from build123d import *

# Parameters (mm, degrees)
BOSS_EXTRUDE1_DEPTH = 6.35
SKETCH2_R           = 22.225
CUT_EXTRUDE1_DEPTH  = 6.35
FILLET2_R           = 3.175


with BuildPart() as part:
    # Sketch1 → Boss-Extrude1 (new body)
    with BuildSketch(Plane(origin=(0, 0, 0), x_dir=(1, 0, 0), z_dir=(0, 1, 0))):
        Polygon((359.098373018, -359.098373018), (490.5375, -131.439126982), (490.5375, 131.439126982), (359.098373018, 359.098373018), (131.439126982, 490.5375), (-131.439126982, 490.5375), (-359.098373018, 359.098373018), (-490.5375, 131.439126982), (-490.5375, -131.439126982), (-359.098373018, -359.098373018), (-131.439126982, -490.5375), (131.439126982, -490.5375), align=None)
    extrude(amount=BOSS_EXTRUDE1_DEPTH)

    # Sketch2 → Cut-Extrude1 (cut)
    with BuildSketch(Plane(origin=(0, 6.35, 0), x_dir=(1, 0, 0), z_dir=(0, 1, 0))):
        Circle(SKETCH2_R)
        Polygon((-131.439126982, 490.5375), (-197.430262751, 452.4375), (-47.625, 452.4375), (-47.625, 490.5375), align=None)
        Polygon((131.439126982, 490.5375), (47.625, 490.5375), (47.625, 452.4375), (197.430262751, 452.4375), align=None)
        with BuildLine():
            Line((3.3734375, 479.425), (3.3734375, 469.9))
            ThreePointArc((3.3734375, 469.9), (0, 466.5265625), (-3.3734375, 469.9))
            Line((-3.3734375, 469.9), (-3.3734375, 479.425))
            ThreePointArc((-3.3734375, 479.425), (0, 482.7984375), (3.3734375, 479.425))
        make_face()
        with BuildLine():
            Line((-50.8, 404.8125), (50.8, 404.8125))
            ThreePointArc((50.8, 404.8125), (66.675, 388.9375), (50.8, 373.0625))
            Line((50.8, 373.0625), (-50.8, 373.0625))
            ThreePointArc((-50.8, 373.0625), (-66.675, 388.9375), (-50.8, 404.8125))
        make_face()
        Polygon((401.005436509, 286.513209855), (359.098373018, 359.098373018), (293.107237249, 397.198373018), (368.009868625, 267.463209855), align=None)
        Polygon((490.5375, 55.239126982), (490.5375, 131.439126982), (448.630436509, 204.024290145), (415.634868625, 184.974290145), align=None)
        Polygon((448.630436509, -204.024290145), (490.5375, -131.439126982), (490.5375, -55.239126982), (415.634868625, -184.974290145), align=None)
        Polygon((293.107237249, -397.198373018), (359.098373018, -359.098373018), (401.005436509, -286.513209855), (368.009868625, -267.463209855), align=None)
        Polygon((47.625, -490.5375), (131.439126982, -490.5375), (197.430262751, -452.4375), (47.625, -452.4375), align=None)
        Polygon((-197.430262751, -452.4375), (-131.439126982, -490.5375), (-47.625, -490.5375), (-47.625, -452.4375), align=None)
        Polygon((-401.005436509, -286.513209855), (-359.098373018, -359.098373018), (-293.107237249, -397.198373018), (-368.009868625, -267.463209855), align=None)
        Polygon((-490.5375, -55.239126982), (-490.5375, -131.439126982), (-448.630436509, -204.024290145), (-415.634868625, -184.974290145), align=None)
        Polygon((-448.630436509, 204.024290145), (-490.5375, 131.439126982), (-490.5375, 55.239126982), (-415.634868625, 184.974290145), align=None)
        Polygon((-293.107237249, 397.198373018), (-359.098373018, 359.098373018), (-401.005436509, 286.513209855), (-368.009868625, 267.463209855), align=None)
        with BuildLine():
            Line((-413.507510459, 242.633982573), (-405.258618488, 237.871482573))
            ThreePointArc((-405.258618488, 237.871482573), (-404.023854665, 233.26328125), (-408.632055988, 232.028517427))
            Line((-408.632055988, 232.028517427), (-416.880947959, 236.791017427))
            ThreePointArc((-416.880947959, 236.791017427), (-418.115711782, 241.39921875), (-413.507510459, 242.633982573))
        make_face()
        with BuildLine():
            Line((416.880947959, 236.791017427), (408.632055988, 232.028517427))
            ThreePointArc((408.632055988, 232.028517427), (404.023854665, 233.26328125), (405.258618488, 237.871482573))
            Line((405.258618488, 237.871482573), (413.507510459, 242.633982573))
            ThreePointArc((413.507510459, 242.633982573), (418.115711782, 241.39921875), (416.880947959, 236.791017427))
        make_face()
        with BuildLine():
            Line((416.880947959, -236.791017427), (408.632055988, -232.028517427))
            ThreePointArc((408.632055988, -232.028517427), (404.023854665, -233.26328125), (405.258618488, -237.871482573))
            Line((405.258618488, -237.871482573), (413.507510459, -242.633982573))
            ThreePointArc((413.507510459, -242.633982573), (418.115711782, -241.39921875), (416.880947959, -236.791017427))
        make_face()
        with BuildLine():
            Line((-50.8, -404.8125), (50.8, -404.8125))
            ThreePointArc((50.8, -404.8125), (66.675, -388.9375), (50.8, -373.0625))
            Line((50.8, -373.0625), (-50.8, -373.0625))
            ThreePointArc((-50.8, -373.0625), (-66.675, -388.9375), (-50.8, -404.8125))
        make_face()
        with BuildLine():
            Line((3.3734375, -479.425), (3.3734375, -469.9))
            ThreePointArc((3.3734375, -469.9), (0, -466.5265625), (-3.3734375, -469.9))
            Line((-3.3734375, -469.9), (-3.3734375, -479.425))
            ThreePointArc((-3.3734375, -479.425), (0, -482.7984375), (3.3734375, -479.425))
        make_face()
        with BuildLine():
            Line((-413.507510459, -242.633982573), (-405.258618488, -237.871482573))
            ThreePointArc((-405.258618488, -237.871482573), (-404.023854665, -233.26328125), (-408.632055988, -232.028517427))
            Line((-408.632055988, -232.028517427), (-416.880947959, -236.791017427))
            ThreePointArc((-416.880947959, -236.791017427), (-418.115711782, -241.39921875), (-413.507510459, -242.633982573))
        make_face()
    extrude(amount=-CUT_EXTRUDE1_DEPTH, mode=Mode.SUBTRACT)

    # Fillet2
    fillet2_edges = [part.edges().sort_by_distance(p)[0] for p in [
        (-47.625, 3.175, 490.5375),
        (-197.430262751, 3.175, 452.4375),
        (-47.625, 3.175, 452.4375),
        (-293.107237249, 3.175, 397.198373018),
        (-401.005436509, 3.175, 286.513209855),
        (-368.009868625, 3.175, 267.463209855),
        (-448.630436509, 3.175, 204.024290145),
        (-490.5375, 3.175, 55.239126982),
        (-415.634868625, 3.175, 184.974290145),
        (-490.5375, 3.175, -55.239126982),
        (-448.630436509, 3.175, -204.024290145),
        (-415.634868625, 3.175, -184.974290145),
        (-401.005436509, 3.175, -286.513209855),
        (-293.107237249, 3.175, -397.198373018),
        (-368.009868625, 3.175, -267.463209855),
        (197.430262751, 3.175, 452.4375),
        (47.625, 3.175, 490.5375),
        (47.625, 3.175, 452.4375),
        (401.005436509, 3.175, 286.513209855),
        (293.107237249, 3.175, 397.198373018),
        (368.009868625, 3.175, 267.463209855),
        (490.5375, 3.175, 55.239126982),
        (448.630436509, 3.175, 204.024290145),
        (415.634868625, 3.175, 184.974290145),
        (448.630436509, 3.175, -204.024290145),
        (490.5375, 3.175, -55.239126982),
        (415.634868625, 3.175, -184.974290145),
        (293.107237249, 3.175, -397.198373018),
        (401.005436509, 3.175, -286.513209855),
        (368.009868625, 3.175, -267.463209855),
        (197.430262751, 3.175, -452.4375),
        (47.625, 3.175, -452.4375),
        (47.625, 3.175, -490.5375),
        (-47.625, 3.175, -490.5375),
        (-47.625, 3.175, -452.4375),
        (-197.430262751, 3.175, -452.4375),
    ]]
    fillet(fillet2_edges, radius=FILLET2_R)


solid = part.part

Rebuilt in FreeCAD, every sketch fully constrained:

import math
import FreeCAD as App
import Part
import Sketcher
from FreeCAD import Vector
Q = App.Units.Quantity


def edges_at(feature, points):
    """Names of the edges that pass closest to the given points."""
    edges = feature.Shape.Edges
    near = lambda p: min(range(len(edges)), key=lambda i: edges[i].distToShape(Part.Vertex(*p))[0])
    return sorted({f"Edge{near(p) + 1}" for p in points})


def add_polygon(sketch, points):
    """Adds a closed chain of lines whose ends are joined by coincident constraints."""
    first, n = sketch.GeometryCount, len(points)
    for a, b in zip(points, points[1:] + points[:1]):
        sketch.addGeometry(Part.LineSegment(App.Vector(*a, 0), App.Vector(*b, 0)), False)
    for i in range(n):
        sketch.addConstraint(Sketcher.Constraint("Coincident", first + i, 2, first + (i + 1) % n, 1))

doc = App.newDocument("Part")
body = doc.addObject("PartDesign::Body", "Body")

sketch1 = doc.addObject("Sketcher::SketchObject", "Sketch")
body.addObject(sketch1)
sketch1.AttachmentSupport = (doc.XZ_Plane, [""])
sketch1.MapMode = "FlatFace"
add_polygon(sketch1, [(359, 359), (491, 131), (491, -131), (359, -359), (131, -491), (-131, -491), (-359, -359), (-491, -131), (-491, 131), (-359, 359), (-131, 491), (131, 491)])
sketch1.addConstraint([
    Sketcher.Constraint("Vertical", 1),
    Sketcher.Constraint("Horizontal", 4),
    Sketcher.Constraint("Vertical", 7),
    Sketcher.Constraint("Horizontal", 10),
    Sketcher.Constraint("Symmetric", 0, 2, 6, 2, -1, 1),
    Sketcher.Constraint("Symmetric", 2, 2, 8, 2, -1, 1),
    Sketcher.Constraint("Symmetric", 3, 2, 9, 2, -1, 1),
    Sketcher.Constraint("Symmetric", 5, 2, 11, 2, -1, 1),
    Sketcher.Constraint("Symmetric", 2, 2, 5, 2, -2),
    Sketcher.Constraint("Perpendicular", 0, 3),
    Sketcher.Constraint("Perpendicular", 2, 5),
    Sketcher.Constraint("Perpendicular", 5, 8),
    Sketcher.Constraint("Perpendicular", 8, 11),
    Sketcher.Constraint("Horizontal", 1, 2, 6, 2),
    Sketcher.Constraint("Equal", 10, 1),
    Sketcher.Constraint("Equal", 2, 3),
    Sketcher.Constraint("Angle", 0, Q("-60 deg")),
    Sketcher.Constraint("DistanceX", -1, 1, 0, 2, Q("19.3125 in")),
    Sketcher.Constraint("DistanceY", 2, 2, 0, 2, Q("19.3125 in")),
])
pad1 = doc.addObject("PartDesign::Pad", "Pad")
body.addObject(pad1)
pad1.Profile = sketch1
pad1.Length = Q("0.25 in")
pad1.Reversed = True

sketch2 = doc.addObject("Sketcher::SketchObject", "Sketch001")
body.addObject(sketch2)
sketch2.AttachmentSupport = (doc.XZ_Plane, [""])
sketch2.MapMode = "FlatFace"
sketch2.AttachmentOffset = App.Placement(Vector(0, 0, -0.25 * 25.4), App.Rotation())
sketch2.addGeometry(Part.Circle(Vector(0, 0, 0), Vector(0, 0, 1), 22.2), False)
add_polygon(sketch2, [(-131.4, -490.5), (-197.4, -452.4), (-47.6, -452.4), (-47.6, -490.5)])
add_polygon(sketch2, [(131.4, -490.5), (47.6, -490.5), (47.6, -452.4), (197.4, -452.4)])
sketch2.addGeometry(Part.LineSegment(Vector(3.4, -469.9, 0), Vector(3.4, -479.4, 0)), False)
sketch2.addGeometry(Part.ArcOfCircle(Part.Circle(Vector(0, -479.4, 0), Vector(0, 0, 1), 3.4), math.radians(180), math.radians(360)), False)
sketch2.addGeometry(Part.LineSegment(Vector(-3.4, -479.4, 0), Vector(-3.4, -469.9, 0)), False)
sketch2.addGeometry(Part.ArcOfCircle(Part.Circle(Vector(0, -469.9, 0), Vector(0, 0, 1), 3.4), math.radians(0), math.radians(180)), False)
sketch2.addGeometry(Part.LineSegment(Vector(50.8, -404.8, 0), Vector(-50.8, -404.8, 0)), False)
sketch2.addGeometry(Part.ArcOfCircle(Part.Circle(Vector(-50.8, -388.9, 0), Vector(0, 0, 1), 15.9), math.radians(90), math.radians(270)), False)
sketch2.addGeometry(Part.LineSegment(Vector(-50.8, -373.1, 0), Vector(50.8, -373.1, 0)), False)
sketch2.addGeometry(Part.ArcOfCircle(Part.Circle(Vector(50.8, -388.9, 0), Vector(0, 0, 1), 15.9), math.radians(-90), math.radians(90)), False)
add_polygon(sketch2, [(401, -286.5), (359.1, -359.1), (293.1, -397.2), (368, -267.5)])
add_polygon(sketch2, [(490.5, -55.2), (490.5, -131.4), (448.6, -204), (415.6, -185)])
add_polygon(sketch2, [(448.6, 204), (490.5, 131.4), (490.5, 55.2), (415.6, 185)])
add_polygon(sketch2, [(293.1, 397.2), (359.1, 359.1), (401, 286.5), (368, 267.5)])
add_polygon(sketch2, [(47.6, 490.5), (131.4, 490.5), (197.4, 452.4), (47.6, 452.4)])
add_polygon(sketch2, [(-197.4, 452.4), (-131.4, 490.5), (-47.6, 490.5), (-47.6, 452.4)])
add_polygon(sketch2, [(-401, 286.5), (-359.1, 359.1), (-293.1, 397.2), (-368, 267.5)])
add_polygon(sketch2, [(-490.5, 55.2), (-490.5, 131.4), (-448.6, 204), (-415.6, 185)])
add_polygon(sketch2, [(-448.6, -204), (-490.5, -131.4), (-490.5, -55.2), (-415.6, -185)])
add_polygon(sketch2, [(-293.1, -397.2), (-359.1, -359.1), (-401, -286.5), (-368, -267.5)])
sketch2.addGeometry(Part.LineSegment(Vector(-405.3, -237.9, 0), Vector(-413.5, -242.6, 0)), False)
sketch2.addGeometry(Part.ArcOfCircle(Part.Circle(Vector(-415.2, -239.7, 0), Vector(0, 0, 1), 3.4), math.radians(120), math.radians(300)), False)
sketch2.addGeometry(Part.LineSegment(Vector(-416.9, -236.8, 0), Vector(-408.6, -232, 0)), False)
sketch2.addGeometry(Part.ArcOfCircle(Part.Circle(Vector(-406.9, -234.9, 0), Vector(0, 0, 1), 3.4), math.radians(-60), math.radians(120)), False)
sketch2.addGeometry(Part.LineSegment(Vector(408.6, -232, 0), Vector(416.9, -236.8, 0)), False)
sketch2.addGeometry(Part.ArcOfCircle(Part.Circle(Vector(415.2, -239.7, 0), Vector(0, 0, 1), 3.4), math.radians(-120), math.radians(60)), False)
sketch2.addGeometry(Part.LineSegment(Vector(413.5, -242.6, 0), Vector(405.3, -237.9, 0)), False)
sketch2.addGeometry(Part.ArcOfCircle(Part.Circle(Vector(406.9, -234.9, 0), Vector(0, 0, 1), 3.4), math.radians(60), math.radians(240)), False)
sketch2.addGeometry(Part.LineSegment(Vector(416.9, 236.8, 0), Vector(408.6, 232, 0)), False)
sketch2.addGeometry(Part.ArcOfCircle(Part.Circle(Vector(406.9, 234.9, 0), Vector(0, 0, 1), 3.4), math.radians(120), math.radians(300)), False)
sketch2.addGeometry(Part.LineSegment(Vector(405.3, 237.9, 0), Vector(413.5, 242.6, 0)), False)
sketch2.addGeometry(Part.ArcOfCircle(Part.Circle(Vector(415.2, 239.7, 0), Vector(0, 0, 1), 3.4), math.radians(-60), math.radians(120)), False)
sketch2.addGeometry(Part.LineSegment(Vector(-50.8, 404.8, 0), Vector(50.8, 404.8, 0)), False)
sketch2.addGeometry(Part.ArcOfCircle(Part.Circle(Vector(50.8, 388.9, 0), Vector(0, 0, 1), 15.9), math.radians(-90), math.radians(90)), False)
sketch2.addGeometry(Part.LineSegment(Vector(50.8, 373.1, 0), Vector(-50.8, 373.1, 0)), False)
sketch2.addGeometry(Part.ArcOfCircle(Part.Circle(Vector(-50.8, 388.9, 0), Vector(0, 0, 1), 15.9), math.radians(90), math.radians(270)), False)
sketch2.addGeometry(Part.LineSegment(Vector(3.4, 479.4, 0), Vector(3.4, 469.9, 0)), False)
sketch2.addGeometry(Part.ArcOfCircle(Part.Circle(Vector(0, 469.9, 0), Vector(0, 0, 1), 3.4), math.radians(180), math.radians(360)), False)
sketch2.addGeometry(Part.LineSegment(Vector(-3.4, 469.9, 0), Vector(-3.4, 479.4, 0)), False)
sketch2.addGeometry(Part.ArcOfCircle(Part.Circle(Vector(0, 479.4, 0), Vector(0, 0, 1), 3.4), math.radians(0), math.radians(180)), False)
sketch2.addGeometry(Part.LineSegment(Vector(-413.5, 242.6, 0), Vector(-405.3, 237.9, 0)), False)
sketch2.addGeometry(Part.ArcOfCircle(Part.Circle(Vector(-406.9, 234.9, 0), Vector(0, 0, 1), 3.4), math.radians(-120), math.radians(60)), False)
sketch2.addGeometry(Part.LineSegment(Vector(-408.6, 232, 0), Vector(-416.9, 236.8, 0)), False)
sketch2.addGeometry(Part.ArcOfCircle(Part.Circle(Vector(-415.2, 239.7, 0), Vector(0, 0, 1), 3.4), math.radians(60), math.radians(240)), False)
sketch2.addConstraint([
    Sketcher.Constraint("Tangent", 9, 2, 10, 2),
    Sketcher.Constraint("Tangent", 10, 1, 11, 1),
    Sketcher.Constraint("Tangent", 11, 2, 12, 2),
    Sketcher.Constraint("Tangent", 12, 1, 9, 1),
    Sketcher.Constraint("Tangent", 13, 2, 14, 2),
    Sketcher.Constraint("Tangent", 14, 1, 15, 1),
    Sketcher.Constraint("Tangent", 15, 2, 16, 2),
    Sketcher.Constraint("Tangent", 16, 1, 13, 1),
    Sketcher.Constraint("Tangent", 57, 2, 58, 2),
    Sketcher.Constraint("Tangent", 58, 1, 59, 1),
    Sketcher.Constraint("Tangent", 59, 2, 60, 2),
    Sketcher.Constraint("Tangent", 60, 1, 57, 1),
    Sketcher.Constraint("Tangent", 61, 2, 62, 2),
    Sketcher.Constraint("Tangent", 62, 1, 63, 1),
    Sketcher.Constraint("Tangent", 63, 2, 64, 2),
    Sketcher.Constraint("Tangent", 64, 1, 61, 1),
    Sketcher.Constraint("Tangent", 65, 2, 66, 2),
    Sketcher.Constraint("Tangent", 66, 1, 67, 1),
    Sketcher.Constraint("Tangent", 67, 2, 68, 2),
    Sketcher.Constraint("Tangent", 68, 1, 65, 1),
    Sketcher.Constraint("Tangent", 69, 2, 70, 2),
    Sketcher.Constraint("Tangent", 70, 1, 71, 1),
    Sketcher.Constraint("Tangent", 71, 2, 72, 2),
    Sketcher.Constraint("Tangent", 72, 1, 69, 1),
    Sketcher.Constraint("Tangent", 73, 2, 74, 2),
    Sketcher.Constraint("Tangent", 74, 1, 75, 1),
    Sketcher.Constraint("Tangent", 75, 2, 76, 2),
    Sketcher.Constraint("Tangent", 76, 1, 73, 1),
    Sketcher.Constraint("Tangent", 77, 2, 78, 2),
    Sketcher.Constraint("Tangent", 78, 1, 79, 1),
    Sketcher.Constraint("Tangent", 79, 2, 80, 2),
    Sketcher.Constraint("Tangent", 80, 1, 77, 1),
    Sketcher.Constraint("Horizontal", 2),
    Sketcher.Constraint("Vertical", 3),
    Sketcher.Constraint("Horizontal", 4),
    Sketcher.Constraint("Horizontal", 5),
    Sketcher.Constraint("Vertical", 6),
    Sketcher.Constraint("Horizontal", 7),
    Sketcher.Constraint("Vertical", 9),
    Sketcher.Constraint("Vertical", 11),
    Sketcher.Constraint("Horizontal", 13),
    Sketcher.Constraint("Horizontal", 15),
    Sketcher.Constraint("Vertical", 21),
    Sketcher.Constraint("Vertical", 26),
    Sketcher.Constraint("Horizontal", 33),
    Sketcher.Constraint("Horizontal", 35),
    Sketcher.Constraint("Vertical", 36),
    Sketcher.Constraint("Horizontal", 38),
    Sketcher.Constraint("Vertical", 39),
    Sketcher.Constraint("Horizontal", 40),
    Sketcher.Constraint("Vertical", 45),
    Sketcher.Constraint("Vertical", 50),
    Sketcher.Constraint("Horizontal", 69),
    Sketcher.Constraint("Horizontal", 71),
    Sketcher.Constraint("Vertical", 73),
    Sketcher.Constraint("Vertical", 75),
    Sketcher.Constraint("Coincident", 0, 3, -1, 1),
    Sketcher.Constraint("Equal", 12, 58),
    Sketcher.Constraint("Equal", 58, 60),
    Sketcher.Constraint("Equal", 60, 62),
    Sketcher.Constraint("Equal", 62, 64),
    Sketcher.Constraint("Equal", 64, 66),
    Sketcher.Constraint("Equal", 66, 68),
    Sketcher.Constraint("Equal", 16, 70),
    Sketcher.Constraint("Equal", 68, 74),
    Sketcher.Constraint("Equal", 76, 78),
    Sketcher.Constraint("Equal", 78, 80),
    Sketcher.Constraint("Symmetric", 60, 3, 66, 3, -1, 1),
    Sketcher.Constraint("Symmetric", 58, 3, 68, 3, -1, 1),
    Sketcher.Constraint("Symmetric", 14, 3, 70, 3, -1, 1),
    Sketcher.Constraint("Symmetric", 12, 3, 74, 3, -1, 1),
    Sketcher.Constraint("Symmetric", 64, 3, 78, 3, -1, 1),
    Sketcher.Constraint("Symmetric", 62, 3, 80, 3, -1, 1),
    Sketcher.Constraint("Symmetric", 4, 2, 33, 2, -1, 1),
    Sketcher.Constraint("Symmetric", 1, 2, 34, 2, -1, 1),
    Sketcher.Constraint("Symmetric", 8, 2, 37, 2, -1, 1),
    Sketcher.Constraint("Symmetric", 6, 2, 39, 2, -1, 1),
    Sketcher.Constraint("Symmetric", 17, 2, 41, 2, -1, 1),
    Sketcher.Constraint("Symmetric", 18, 2, 42, 2, -1, 1),
    Sketcher.Constraint("Symmetric", 19, 2, 43, 2, -1, 1),
    Sketcher.Constraint("Symmetric", 20, 2, 44, 2, -1, 1),
    Sketcher.Constraint("Symmetric", 21, 2, 45, 2, -1, 1),
    Sketcher.Constraint("Symmetric", 22, 2, 46, 2, -1, 1),
    Sketcher.Constraint("Symmetric", 23, 2, 47, 2, -1, 1),
    Sketcher.Constraint("Symmetric", 25, 2, 49, 2, -1, 1),
    Sketcher.Constraint("Symmetric", 27, 2, 51, 2, -1, 1),
    Sketcher.Constraint("Symmetric", 28, 2, 52, 2, -1, 1),
    Sketcher.Constraint("Symmetric", 29, 2, 53, 2, -1, 1),
    Sketcher.Constraint("Symmetric", 30, 2, 54, 2, -1, 1),
    Sketcher.Constraint("Symmetric", 31, 2, 55, 2, -1, 1),
    Sketcher.Constraint("Symmetric", 32, 2, 56, 2, -1, 1),
    Sketcher.Constraint("Symmetric", 58, 3, 62, 3, -2),
    Sketcher.Constraint("Symmetric", 60, 3, 64, 3, -2),
    Sketcher.Constraint("Symmetric", 3, 2, 5, 2, -2),
    Sketcher.Constraint("Symmetric", 1, 2, 7, 2, -2),
    Sketcher.Constraint("Symmetric", 29, 2, 41, 2, -2),
    Sketcher.Constraint("Symmetric", 32, 2, 42, 2, -2),
    Sketcher.Constraint("Symmetric", 31, 2, 43, 2, -2),
    Sketcher.Constraint("Symmetric", 30, 2, 44, 2, -2),
    Sketcher.Constraint("Symmetric", 25, 2, 45, 2, -2),
    Sketcher.Constraint("Symmetric", 28, 2, 46, 2, -2),
    Sketcher.Constraint("Symmetric", 27, 2, 47, 2, -2),
    Sketcher.Constraint("Symmetric", 10, 3, 76, 3, -1),
    Sketcher.Constraint("Perpendicular", 1, 17),
    Sketcher.Constraint("Parallel", 8, 18),
    Sketcher.Constraint("Parallel", 17, 19),
    Sketcher.Constraint("Perpendicular", 19, 20),
    Sketcher.Constraint("Perpendicular", 20, 22),
    Sketcher.Constraint("Perpendicular", 22, 23),
    Sketcher.Constraint("Perpendicular", 23, 24),
    Sketcher.Constraint("Perpendicular", 18, 25),
    Sketcher.Constraint("Parallel", 25, 27),
    Sketcher.Constraint("Perpendicular", 32, 37),
    Sketcher.Constraint("Perpendicular", 47, 48),
    Sketcher.Constraint("Parallel", 49, 51),
    Sketcher.Constraint("Perpendicular", 56, 57),
    Sketcher.Constraint("Vertical", 16, 3, 70, 3),
    Sketcher.Constraint("Vertical", 14, 3, 72, 3),
    Sketcher.Constraint("Vertical", 6, 2, 35, 2),
    Sketcher.Constraint("Equal", 8, 18),
    Sketcher.Constraint("Equal", 17, 22),
    Sketcher.Constraint("Equal", 20, 23),
    Sketcher.Constraint("Equal", 19, 24),
    Sketcher.Constraint("Diameter", 0, Q("1.75 in")),
    Sketcher.Constraint("DistanceX", 13, 2, 13, 1, Q("4 in")),
    Sketcher.Constraint("DistanceY", 21, 2, 21, 1, Q("3 in")),
    Sketcher.Constraint("Radius", 14, Q("0.625 in")),
    Sketcher.Constraint("DistanceY", 12, 3, -1, 1, Q("18.5 in")),
    Sketcher.Constraint("DistanceY", 9, 2, 9, 1, Q("0.375 in")),
    Sketcher.Constraint("DistanceY", 60, 3, -1, 1, Q("9.25 in")),
    Sketcher.Constraint("Distance", 57, Q("0.375 in")),
    Sketcher.Constraint("DistanceY", 14, 3, -1, 1, Q("15.3125 in")),
    Sketcher.Constraint("DistanceY", 1, 2, -1, 1, Q("17.8125 in")),
    Sketcher.Constraint("DistanceX", 2, 2, -1, 1, Q("1.875 in")),
    Sketcher.Constraint("DistanceX", -1, 1, 21, 2, Q("19.3125 in")),
    Sketcher.Constraint("Radius", 10, 3.373438),
    Sketcher.Constraint("DistanceX", 2, 1, 2, 2, 149.805263),
    Sketcher.Constraint("DistanceX", 58, 3, -1, 1, 415.194229),
    Sketcher.Constraint("DistanceX", -1, 1, 19, 2, 368.009869),
    Sketcher.Constraint("DistanceY", 19, 2, -1, 1, 267.46321),
    Sketcher.Constraint("DistanceY", 22, 2, -1, 1, 204.02429),
    Sketcher.Constraint("DistanceX", -1, 1, 23, 2, 415.634869),
])
pocket1 = doc.addObject("PartDesign::Pocket", "Pocket")
body.addObject(pocket1)
pocket1.Profile = sketch2
pocket1.Length = Q("0.25 in")
pocket1.Reversed = True
doc.recompute()

fillet = doc.addObject("PartDesign::Fillet", "Fillet")
body.addObject(fillet)
fillet.Base = (pocket1, edges_at(pocket1, [
    (-47.625, 3.175, 490.538),
    (-197.43, 3.175, 452.438),
    (-47.625, 3.175, 452.438),
    (-293.107, 3.175, 397.198),
    (-401.005, 3.175, 286.513),
    (-368.01, 3.175, 267.463),
    (-448.63, 3.175, 204.024),
    (-490.538, 3.175, 55.239),
    (-415.635, 3.175, 184.974),
    (-490.538, 3.175, -55.239),
    (-448.63, 3.175, -204.024),
    (-415.635, 3.175, -184.974),
    (-401.005, 3.175, -286.513),
    (-293.107, 3.175, -397.198),
    (-368.01, 3.175, -267.463),
    (197.43, 3.175, 452.438),
    (47.625, 3.175, 490.538),
    (47.625, 3.175, 452.438),
    (401.005, 3.175, 286.513),
    (293.107, 3.175, 397.198),
    (368.01, 3.175, 267.463),
    (490.538, 3.175, 55.239),
    (448.63, 3.175, 204.024),
    (415.635, 3.175, 184.974),
    (448.63, 3.175, -204.024),
    (490.538, 3.175, -55.239),
    (415.635, 3.175, -184.974),
    (293.107, 3.175, -397.198),
    (401.005, 3.175, -286.513),
    (368.01, 3.175, -267.463),
    (197.43, 3.175, -452.438),
    (47.625, 3.175, -452.438),
    (47.625, 3.175, -490.538),
    (-47.625, 3.175, -490.538),
    (-47.625, 3.175, -452.438),
    (-197.43, 3.175, -452.438),
]))
fillet.Radius = Q("0.125 in")

doc.recompute()
